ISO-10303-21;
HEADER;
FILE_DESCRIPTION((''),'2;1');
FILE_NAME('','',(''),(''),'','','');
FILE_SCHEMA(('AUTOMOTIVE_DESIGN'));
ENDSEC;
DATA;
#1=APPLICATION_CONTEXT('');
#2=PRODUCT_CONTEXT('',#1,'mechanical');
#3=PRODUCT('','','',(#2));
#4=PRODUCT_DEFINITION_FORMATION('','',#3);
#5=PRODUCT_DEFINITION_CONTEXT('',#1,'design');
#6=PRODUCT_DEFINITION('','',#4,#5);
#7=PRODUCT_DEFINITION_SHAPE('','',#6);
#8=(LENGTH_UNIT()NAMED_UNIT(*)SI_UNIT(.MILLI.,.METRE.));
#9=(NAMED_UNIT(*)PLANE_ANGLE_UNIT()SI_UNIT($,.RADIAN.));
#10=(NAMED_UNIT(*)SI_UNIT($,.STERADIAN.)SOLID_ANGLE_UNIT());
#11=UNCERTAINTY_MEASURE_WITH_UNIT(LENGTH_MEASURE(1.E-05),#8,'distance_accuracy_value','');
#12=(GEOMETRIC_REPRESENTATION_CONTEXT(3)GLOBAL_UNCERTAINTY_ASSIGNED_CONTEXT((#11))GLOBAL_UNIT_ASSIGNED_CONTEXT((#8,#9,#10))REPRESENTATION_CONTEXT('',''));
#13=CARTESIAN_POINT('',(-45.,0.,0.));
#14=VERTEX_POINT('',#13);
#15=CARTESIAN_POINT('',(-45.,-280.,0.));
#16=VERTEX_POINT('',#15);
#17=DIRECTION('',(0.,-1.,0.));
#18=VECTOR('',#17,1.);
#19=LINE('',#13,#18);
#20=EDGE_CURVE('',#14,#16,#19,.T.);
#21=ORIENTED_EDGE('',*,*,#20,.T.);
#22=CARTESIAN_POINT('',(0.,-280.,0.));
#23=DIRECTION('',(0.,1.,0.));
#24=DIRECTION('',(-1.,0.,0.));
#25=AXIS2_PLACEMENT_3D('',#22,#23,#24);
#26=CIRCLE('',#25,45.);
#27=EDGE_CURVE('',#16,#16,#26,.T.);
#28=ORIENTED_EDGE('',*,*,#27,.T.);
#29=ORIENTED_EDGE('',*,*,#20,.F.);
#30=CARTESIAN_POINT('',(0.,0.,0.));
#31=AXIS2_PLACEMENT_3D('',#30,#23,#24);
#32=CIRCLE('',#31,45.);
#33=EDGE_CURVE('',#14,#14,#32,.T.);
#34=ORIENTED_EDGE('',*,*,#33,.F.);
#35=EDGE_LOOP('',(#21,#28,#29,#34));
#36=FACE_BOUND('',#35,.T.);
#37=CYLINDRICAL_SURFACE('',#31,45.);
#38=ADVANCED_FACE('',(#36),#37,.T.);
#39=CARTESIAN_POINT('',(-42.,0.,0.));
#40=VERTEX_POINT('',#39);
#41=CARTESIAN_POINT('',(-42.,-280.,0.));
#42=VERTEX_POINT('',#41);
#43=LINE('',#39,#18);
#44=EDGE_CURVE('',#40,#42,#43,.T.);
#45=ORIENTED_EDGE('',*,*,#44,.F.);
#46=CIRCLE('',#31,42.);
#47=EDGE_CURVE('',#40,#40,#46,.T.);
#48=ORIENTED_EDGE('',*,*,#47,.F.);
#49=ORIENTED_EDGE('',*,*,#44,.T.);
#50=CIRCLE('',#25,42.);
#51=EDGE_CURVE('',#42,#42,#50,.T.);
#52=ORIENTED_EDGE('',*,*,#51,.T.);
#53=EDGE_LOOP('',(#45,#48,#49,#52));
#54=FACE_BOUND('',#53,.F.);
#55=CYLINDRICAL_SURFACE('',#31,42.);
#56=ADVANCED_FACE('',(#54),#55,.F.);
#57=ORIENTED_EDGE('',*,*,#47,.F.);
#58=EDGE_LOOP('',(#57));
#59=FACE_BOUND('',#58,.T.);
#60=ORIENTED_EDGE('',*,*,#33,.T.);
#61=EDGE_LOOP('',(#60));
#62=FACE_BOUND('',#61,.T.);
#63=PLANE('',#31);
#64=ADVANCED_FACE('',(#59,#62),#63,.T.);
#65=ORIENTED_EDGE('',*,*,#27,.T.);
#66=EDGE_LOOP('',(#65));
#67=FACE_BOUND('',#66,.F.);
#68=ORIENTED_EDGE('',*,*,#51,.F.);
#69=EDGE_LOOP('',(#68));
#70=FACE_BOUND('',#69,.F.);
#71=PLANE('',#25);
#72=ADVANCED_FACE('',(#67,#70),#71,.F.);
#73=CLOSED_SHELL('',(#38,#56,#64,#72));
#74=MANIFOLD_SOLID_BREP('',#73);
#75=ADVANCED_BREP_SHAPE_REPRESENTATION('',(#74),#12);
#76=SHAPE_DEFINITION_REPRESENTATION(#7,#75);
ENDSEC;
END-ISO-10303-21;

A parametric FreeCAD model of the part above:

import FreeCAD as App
import Part
import Sketcher
Q = App.Units.Quantity

doc = App.newDocument("Part")
params = doc.addObject("Spreadsheet::Sheet", "Params")
for row, (alias, value) in enumerate([
    ("sketch1_diameter", "90 mm"),
    ("sketch1_diameter2", "84 mm"),
    ("pad1_length", "280 mm"),
], start=1):
    params.set(f"A{row}", alias)
    params.set(f"B{row}", "=" + value)
    params.setAlias(f"B{row}", alias)

body = doc.addObject("PartDesign::Body", "Body")

sketch1 = body.newObject("Sketcher::SketchObject", "Sketch")
sketch1.AttachmentSupport = (doc.getObject("XZ_Plane"), [""])
sketch1.MapMode = "FlatFace"
sketch1.addGeometry([
    Part.Circle(App.Vector(0, 0, 0), App.Vector(0, 0, 1), 45),
    Part.Circle(App.Vector(0, 0, 0), App.Vector(0, 0, 1), 42),
], False)
sketch1.addConstraint([
    Sketcher.Constraint("Coincident", 0, 3, -1, 1),
    Sketcher.Constraint("Coincident", 1, 3, -1, 1),
    Sketcher.Constraint("Diameter", 0, Q("90 mm")),
    Sketcher.Constraint("Diameter", 1, Q("84 mm")),
])
sketch1.setExpression("Constraints[2]", "Params.sketch1_diameter")
sketch1.setExpression("Constraints[3]", "Params.sketch1_diameter2")
pad1 = body.newObject("PartDesign::Pad", "Pad")
pad1.Profile = sketch1
pad1.setExpression("Length", "Params.pad1_length")

doc.recompute()
